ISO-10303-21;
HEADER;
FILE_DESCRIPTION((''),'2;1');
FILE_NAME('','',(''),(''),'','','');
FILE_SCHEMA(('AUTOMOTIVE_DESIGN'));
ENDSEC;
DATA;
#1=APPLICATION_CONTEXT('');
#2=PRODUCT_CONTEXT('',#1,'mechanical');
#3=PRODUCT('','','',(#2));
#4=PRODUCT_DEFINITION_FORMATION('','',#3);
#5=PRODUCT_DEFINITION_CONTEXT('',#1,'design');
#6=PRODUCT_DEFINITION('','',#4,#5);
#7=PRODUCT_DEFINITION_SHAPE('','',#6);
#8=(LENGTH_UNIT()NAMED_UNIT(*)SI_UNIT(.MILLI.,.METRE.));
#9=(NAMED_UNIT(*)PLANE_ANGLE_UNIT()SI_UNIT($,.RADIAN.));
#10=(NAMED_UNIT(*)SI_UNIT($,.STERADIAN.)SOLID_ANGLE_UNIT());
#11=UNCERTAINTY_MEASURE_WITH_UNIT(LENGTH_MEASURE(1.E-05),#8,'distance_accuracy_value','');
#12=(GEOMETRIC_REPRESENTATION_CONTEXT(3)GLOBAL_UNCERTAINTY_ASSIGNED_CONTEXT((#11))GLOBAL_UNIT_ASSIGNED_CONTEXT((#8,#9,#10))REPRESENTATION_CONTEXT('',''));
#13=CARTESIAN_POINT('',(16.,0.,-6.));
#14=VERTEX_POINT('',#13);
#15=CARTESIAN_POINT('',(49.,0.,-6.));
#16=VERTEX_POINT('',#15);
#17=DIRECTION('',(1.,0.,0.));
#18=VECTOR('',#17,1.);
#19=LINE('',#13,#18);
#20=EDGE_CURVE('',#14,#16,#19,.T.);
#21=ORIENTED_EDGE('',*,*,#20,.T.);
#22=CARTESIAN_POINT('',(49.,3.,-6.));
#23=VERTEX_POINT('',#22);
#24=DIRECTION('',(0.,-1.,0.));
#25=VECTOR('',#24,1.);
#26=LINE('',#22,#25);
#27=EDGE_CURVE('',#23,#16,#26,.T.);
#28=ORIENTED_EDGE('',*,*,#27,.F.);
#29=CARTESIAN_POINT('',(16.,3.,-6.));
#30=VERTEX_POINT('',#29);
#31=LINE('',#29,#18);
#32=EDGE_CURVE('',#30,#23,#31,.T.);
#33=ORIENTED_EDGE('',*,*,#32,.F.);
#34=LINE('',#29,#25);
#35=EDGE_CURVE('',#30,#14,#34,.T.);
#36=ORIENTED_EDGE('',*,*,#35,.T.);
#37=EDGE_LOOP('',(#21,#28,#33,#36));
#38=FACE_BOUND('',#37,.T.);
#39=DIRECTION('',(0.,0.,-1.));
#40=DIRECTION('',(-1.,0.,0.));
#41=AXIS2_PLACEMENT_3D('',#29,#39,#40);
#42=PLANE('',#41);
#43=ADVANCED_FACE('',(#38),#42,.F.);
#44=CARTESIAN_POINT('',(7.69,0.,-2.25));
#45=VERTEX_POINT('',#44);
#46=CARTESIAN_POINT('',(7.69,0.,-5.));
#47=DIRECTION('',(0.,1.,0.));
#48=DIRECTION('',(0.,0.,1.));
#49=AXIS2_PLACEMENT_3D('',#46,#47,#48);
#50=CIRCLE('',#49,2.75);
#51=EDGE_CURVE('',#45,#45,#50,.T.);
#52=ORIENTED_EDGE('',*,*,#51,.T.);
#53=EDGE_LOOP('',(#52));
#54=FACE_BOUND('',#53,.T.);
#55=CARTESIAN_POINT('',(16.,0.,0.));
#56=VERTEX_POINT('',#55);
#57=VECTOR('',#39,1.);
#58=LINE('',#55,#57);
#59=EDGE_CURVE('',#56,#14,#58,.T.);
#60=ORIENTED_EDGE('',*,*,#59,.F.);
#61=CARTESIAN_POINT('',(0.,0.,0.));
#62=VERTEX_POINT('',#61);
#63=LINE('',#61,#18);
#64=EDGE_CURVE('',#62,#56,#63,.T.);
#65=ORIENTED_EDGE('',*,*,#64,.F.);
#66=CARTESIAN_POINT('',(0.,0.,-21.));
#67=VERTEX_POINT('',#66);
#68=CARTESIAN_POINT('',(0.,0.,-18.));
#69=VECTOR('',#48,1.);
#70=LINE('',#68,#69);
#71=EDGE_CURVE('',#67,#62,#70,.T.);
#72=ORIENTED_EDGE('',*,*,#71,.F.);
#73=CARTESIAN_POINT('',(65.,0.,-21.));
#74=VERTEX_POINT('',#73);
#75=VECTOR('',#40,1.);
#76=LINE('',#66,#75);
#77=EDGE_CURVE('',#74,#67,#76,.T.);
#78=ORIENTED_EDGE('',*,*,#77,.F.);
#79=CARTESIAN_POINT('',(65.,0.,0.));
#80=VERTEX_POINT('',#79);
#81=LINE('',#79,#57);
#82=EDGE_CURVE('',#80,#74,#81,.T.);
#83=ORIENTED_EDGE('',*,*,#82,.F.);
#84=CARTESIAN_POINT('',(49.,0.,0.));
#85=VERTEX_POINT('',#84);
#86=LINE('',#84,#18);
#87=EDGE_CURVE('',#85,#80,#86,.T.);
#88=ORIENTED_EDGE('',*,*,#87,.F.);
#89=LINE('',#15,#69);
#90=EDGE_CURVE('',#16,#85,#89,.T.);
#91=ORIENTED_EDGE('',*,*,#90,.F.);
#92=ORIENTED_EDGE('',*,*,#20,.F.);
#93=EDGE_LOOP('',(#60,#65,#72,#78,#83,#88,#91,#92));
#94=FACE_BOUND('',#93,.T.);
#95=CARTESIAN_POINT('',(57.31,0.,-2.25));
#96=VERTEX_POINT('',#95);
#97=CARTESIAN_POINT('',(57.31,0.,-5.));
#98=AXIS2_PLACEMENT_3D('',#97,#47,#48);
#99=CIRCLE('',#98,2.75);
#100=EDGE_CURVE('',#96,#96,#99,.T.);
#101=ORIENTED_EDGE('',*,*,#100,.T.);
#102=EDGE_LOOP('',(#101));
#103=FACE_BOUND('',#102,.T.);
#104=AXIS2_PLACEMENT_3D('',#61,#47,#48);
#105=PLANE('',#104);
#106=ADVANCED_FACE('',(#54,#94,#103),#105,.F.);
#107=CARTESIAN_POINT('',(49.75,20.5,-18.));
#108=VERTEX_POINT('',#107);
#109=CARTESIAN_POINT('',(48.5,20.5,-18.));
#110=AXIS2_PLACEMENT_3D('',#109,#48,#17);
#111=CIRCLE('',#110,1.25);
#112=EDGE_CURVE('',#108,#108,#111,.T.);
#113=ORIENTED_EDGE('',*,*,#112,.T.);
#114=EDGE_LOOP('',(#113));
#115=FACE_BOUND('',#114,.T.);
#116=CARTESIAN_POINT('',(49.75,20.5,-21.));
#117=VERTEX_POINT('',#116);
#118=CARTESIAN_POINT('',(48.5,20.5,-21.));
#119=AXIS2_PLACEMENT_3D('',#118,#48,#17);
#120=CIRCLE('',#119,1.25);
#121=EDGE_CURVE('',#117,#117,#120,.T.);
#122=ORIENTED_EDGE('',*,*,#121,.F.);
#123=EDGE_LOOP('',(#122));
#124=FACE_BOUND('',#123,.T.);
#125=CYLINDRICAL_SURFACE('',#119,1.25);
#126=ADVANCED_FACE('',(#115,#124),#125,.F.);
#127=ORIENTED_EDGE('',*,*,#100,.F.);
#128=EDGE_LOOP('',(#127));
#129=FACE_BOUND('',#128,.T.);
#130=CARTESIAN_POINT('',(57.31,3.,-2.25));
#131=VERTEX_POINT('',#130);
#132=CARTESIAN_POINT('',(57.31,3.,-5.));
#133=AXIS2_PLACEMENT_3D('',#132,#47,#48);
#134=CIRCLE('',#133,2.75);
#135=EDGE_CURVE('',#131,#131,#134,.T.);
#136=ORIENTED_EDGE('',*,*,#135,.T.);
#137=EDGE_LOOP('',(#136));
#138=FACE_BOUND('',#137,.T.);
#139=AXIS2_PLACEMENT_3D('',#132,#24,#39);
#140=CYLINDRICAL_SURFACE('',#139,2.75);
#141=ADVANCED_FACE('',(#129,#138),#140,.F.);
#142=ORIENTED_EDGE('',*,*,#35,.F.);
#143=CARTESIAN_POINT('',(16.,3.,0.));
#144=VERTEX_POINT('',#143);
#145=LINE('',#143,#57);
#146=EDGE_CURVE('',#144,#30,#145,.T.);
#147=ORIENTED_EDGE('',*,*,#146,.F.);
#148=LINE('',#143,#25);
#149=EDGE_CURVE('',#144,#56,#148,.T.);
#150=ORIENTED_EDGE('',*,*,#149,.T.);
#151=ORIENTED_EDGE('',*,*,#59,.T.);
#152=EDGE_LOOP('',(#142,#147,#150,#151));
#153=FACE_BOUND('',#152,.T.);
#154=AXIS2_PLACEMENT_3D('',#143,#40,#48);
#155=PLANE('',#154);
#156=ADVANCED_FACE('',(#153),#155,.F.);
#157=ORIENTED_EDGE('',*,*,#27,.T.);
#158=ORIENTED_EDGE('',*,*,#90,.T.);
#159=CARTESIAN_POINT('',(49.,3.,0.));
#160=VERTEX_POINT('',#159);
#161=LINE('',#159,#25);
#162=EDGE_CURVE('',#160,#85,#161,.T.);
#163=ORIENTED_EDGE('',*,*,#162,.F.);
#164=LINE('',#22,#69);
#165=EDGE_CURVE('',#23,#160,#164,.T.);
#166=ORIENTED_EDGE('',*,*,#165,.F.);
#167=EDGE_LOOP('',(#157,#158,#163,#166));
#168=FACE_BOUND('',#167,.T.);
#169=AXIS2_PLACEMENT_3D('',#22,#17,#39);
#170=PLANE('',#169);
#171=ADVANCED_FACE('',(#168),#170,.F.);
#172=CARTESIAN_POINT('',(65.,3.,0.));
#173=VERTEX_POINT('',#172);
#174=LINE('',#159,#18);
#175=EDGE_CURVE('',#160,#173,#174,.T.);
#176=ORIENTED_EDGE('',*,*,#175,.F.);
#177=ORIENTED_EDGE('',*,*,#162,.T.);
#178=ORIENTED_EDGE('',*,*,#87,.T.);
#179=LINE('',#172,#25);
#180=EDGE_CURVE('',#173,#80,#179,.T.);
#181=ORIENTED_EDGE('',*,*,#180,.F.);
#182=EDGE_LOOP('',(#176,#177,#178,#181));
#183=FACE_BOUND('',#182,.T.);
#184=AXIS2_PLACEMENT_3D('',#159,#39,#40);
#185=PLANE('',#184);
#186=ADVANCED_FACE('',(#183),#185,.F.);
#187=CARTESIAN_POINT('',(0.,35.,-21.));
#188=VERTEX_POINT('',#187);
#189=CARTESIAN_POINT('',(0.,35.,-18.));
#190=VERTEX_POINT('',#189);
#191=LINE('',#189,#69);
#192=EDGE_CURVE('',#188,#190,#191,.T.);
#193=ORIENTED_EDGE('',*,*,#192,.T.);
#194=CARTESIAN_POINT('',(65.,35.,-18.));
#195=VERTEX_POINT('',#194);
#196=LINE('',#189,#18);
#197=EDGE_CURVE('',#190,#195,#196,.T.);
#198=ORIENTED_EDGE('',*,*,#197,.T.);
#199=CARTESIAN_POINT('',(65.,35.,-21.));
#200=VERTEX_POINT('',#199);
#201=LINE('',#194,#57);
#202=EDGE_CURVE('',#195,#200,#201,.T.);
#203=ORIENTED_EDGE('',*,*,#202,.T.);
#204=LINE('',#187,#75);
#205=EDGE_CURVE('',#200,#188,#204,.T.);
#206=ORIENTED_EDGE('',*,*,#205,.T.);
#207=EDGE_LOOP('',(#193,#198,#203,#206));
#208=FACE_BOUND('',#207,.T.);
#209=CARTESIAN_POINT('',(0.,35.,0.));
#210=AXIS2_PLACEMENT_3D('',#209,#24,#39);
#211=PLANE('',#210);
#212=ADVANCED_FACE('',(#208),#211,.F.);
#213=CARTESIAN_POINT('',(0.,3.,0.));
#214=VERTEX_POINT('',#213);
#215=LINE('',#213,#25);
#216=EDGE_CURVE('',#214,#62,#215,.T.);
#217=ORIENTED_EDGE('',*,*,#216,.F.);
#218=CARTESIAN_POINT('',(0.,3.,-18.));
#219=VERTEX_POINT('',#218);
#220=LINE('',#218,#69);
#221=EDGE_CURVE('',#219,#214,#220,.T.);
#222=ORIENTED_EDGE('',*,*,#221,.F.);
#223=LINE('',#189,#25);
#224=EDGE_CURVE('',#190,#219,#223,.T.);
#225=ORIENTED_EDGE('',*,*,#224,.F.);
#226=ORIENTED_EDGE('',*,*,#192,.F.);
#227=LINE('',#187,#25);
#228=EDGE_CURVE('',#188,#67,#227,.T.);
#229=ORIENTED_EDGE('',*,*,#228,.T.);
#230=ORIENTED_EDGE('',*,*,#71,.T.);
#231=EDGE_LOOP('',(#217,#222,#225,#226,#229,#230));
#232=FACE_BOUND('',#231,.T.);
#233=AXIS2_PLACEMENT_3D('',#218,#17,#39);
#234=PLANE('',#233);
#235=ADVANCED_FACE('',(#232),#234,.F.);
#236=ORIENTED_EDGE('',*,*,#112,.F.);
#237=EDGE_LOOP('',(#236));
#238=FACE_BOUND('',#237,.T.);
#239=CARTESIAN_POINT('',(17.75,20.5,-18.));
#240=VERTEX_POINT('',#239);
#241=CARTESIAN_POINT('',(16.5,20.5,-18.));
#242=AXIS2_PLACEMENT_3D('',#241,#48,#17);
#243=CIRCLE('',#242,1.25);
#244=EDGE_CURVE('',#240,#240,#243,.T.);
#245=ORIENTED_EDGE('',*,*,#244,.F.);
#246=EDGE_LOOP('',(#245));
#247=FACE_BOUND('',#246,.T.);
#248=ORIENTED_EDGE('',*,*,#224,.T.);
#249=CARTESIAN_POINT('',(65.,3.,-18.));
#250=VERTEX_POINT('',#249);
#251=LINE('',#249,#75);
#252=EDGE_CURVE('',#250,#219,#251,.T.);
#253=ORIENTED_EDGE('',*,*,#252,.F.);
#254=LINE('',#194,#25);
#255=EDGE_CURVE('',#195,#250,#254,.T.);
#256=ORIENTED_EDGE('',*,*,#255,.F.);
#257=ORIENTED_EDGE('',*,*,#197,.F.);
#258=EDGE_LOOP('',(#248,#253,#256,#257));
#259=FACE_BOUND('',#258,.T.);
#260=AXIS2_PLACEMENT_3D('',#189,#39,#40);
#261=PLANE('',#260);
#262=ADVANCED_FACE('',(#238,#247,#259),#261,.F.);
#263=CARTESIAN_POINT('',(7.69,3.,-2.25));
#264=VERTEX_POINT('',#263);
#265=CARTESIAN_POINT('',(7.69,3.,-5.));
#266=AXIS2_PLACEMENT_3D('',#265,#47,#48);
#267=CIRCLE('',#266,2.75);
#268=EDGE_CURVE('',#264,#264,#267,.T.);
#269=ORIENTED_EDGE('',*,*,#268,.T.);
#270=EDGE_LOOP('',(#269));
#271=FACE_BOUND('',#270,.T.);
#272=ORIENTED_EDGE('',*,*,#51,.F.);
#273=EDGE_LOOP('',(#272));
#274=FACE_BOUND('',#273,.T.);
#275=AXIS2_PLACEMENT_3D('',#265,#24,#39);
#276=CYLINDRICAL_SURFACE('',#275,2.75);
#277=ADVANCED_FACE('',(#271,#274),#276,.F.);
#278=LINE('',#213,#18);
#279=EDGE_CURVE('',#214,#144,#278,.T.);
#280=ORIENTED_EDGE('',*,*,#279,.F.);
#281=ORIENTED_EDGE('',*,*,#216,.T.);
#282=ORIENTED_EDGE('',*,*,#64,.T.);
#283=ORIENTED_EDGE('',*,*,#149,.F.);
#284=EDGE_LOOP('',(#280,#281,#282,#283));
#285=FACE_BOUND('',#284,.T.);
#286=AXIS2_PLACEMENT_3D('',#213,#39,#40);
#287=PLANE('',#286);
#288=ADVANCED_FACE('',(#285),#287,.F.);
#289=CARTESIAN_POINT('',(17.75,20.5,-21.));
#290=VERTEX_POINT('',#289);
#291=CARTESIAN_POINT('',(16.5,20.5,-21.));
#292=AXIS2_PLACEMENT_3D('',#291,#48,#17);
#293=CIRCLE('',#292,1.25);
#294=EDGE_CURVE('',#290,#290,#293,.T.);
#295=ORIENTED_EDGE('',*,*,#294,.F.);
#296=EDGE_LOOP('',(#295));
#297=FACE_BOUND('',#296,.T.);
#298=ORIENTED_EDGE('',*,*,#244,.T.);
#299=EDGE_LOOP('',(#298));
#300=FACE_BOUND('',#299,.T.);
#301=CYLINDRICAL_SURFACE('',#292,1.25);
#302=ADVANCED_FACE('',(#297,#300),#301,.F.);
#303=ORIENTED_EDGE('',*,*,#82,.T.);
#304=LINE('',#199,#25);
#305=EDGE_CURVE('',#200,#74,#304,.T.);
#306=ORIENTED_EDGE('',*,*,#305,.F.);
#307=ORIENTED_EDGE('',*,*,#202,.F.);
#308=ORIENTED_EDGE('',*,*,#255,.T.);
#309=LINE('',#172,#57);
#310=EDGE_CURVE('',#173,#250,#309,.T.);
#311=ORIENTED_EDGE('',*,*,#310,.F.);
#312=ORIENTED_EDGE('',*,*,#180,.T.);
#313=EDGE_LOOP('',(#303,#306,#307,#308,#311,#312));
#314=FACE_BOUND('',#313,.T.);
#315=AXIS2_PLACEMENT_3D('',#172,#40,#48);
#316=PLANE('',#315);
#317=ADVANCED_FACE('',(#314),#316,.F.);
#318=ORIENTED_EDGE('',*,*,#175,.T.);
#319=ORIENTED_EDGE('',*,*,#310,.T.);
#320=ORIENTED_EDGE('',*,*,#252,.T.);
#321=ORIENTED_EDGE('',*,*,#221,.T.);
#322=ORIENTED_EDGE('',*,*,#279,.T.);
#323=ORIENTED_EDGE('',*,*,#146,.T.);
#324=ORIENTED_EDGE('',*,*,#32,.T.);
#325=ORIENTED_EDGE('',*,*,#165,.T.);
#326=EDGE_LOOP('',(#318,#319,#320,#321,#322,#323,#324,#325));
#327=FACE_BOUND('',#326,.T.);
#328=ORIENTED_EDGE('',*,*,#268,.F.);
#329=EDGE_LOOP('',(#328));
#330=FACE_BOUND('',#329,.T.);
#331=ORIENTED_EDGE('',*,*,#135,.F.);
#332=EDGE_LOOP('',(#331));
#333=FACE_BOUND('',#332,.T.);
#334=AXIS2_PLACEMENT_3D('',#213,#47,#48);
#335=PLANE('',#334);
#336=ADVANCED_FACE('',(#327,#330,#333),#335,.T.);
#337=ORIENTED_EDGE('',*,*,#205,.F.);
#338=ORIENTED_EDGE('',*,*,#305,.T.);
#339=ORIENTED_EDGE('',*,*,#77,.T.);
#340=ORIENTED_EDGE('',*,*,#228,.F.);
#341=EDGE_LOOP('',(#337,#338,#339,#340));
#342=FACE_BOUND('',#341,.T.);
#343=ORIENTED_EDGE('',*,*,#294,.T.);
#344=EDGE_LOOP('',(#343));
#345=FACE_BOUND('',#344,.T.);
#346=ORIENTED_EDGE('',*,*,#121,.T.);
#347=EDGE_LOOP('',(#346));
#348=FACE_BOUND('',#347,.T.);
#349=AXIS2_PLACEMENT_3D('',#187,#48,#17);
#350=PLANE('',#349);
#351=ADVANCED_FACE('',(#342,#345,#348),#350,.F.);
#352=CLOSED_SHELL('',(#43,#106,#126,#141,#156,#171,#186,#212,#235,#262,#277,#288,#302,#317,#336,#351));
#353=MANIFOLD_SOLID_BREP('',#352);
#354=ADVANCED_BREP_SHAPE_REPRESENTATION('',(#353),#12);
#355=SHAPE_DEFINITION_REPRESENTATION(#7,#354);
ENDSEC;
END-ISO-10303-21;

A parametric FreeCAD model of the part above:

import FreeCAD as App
import Part
import Sketcher

V = App.Vector

doc = App.newDocument("Part")
params = doc.addObject("Spreadsheet::Sheet", "Params")
for row, (alias, value) in enumerate([
    ("sketch1_diameter", "5.5 mm"),
    ("sketch1_width", "16 mm"),
    ("sketch1_width2", "33 mm"),
    ("sketch1_height", "6 mm"),
    ("sketch1_height2", "18 mm"),
    ("pad1_length", "3 mm"),
    ("sketch2_width", "65 mm"),
    ("sketch2_height", "3 mm"),
    ("pad2_length", "35 mm"),
    ("sketch3_diameter", "2.5 mm"),
], start=1):
    params.set(f"A{row}", alias)
    params.set(f"B{row}", "=" + value)
    params.setAlias(f"B{row}", alias)

body = doc.addObject("PartDesign::Body", "Body")

# Sketch on XZ plane
sketch1 = doc.addObject("Sketcher::SketchObject", "Sketch")
body.addObject(sketch1)
sketch1.AttachmentSupport = (doc.XZ_Plane, [""])
sketch1.MapMode = "FlatFace"
sketch1.addGeometry([
    Part.LineSegment(V(0, 0, 0), V(16, 0, 0)),  # 0
    Part.LineSegment(V(16, 0, 0), V(16, -6, 0)),  # 1
    Part.LineSegment(V(16, -6, 0), V(49, -6, 0)),  # 2
    Part.LineSegment(V(49, -6, 0), V(49, 0, 0)),  # 3
    Part.LineSegment(V(49, 0, 0), V(65, 0, 0)),  # 4
    Part.LineSegment(V(65, 0, 0), V(65, -18, 0)),  # 5
    Part.LineSegment(V(65, -18, 0), V(0, -18, 0)),  # 6
    Part.LineSegment(V(0, -18, 0), V(0, 0, 0)),  # 7
    Part.Circle(V(7.7, -5, 0), V(0, 0, 1), 2.8),  # 8
    Part.Circle(V(57.3, -5, 0), V(0, 0, 1), 2.8),  # 9
], False)
sketch1.addConstraint([
    Sketcher.Constraint("Coincident", 0, 2, 1, 1),
    Sketcher.Constraint("Coincident", 1, 2, 2, 1),
    Sketcher.Constraint("Coincident", 2, 2, 3, 1),
    Sketcher.Constraint("Coincident", 3, 2, 4, 1),
    Sketcher.Constraint("Coincident", 4, 2, 5, 1),
    Sketcher.Constraint("Coincident", 5, 2, 6, 1),
    Sketcher.Constraint("Coincident", 6, 2, 7, 1),
    Sketcher.Constraint("Coincident", 7, 2, 0, 1),
    Sketcher.Constraint("Horizontal", 0),
    Sketcher.Constraint("Vertical", 1),
    Sketcher.Constraint("Horizontal", 2),
    Sketcher.Constraint("Vertical", 3),
    Sketcher.Constraint("Horizontal", 4),
    Sketcher.Constraint("Vertical", 5),
    Sketcher.Constraint("Horizontal", 6),
    Sketcher.Constraint("Vertical", 7),
    Sketcher.Constraint("Coincident", 7, 2, -1, 1),
    Sketcher.Constraint("Equal", 8, 9),
    Sketcher.Constraint("PointOnObject", 3, 2, -1),
    Sketcher.Constraint("Horizontal", 8, 3, 9, 3),
    Sketcher.Constraint("Equal", 0, 4),
    Sketcher.Constraint("Diameter", 8, 5.5),
    Sketcher.Constraint("DistanceX", 0, 1, 0, 2, 16.0),
    Sketcher.Constraint("DistanceX", 2, 1, 2, 2, 33.0),
    Sketcher.Constraint("DistanceY", 1, 2, 1, 1, 6.0),
    Sketcher.Constraint("DistanceY", 5, 2, 5, 1, 18.0),
    Sketcher.Constraint("DistanceY", 8, 3, -1, 1, 5.0),
    Sketcher.Constraint("DistanceX", -1, 1, 8, 3, 7.69),
    Sketcher.Constraint("DistanceX", -1, 1, 9, 3, 57.31),
])
sketch1.setExpression("Constraints[21]", "Params.sketch1_diameter")
sketch1.setExpression("Constraints[22]", "Params.sketch1_width")
sketch1.setExpression("Constraints[23]", "Params.sketch1_width2")
sketch1.setExpression("Constraints[24]", "Params.sketch1_height")
sketch1.setExpression("Constraints[25]", "Params.sketch1_height2")
pad1 = doc.addObject("PartDesign::Pad", "Pad")
body.addObject(pad1)
pad1.Profile = sketch1
pad1.setExpression("Length", "Params.pad1_length")
pad1.Reversed = True

# Sketch on XZ plane
sketch2 = doc.addObject("Sketcher::SketchObject", "Sketch001")
body.addObject(sketch2)
sketch2.AttachmentSupport = (doc.XZ_Plane, [""])
sketch2.MapMode = "FlatFace"
sketch2.addGeometry([
    Part.LineSegment(V(0, -21, 0), V(0, -18, 0)),
    Part.LineSegment(V(0, -18, 0), V(65, -18, 0)),
    Part.LineSegment(V(65, -18, 0), V(65, -21, 0)),
    Part.LineSegment(V(65, -21, 0), V(0, -21, 0)),
], False)
sketch2.addConstraint([
    Sketcher.Constraint("Coincident", 0, 2, 1, 1),
    Sketcher.Constraint("Coincident", 1, 2, 2, 1),
    Sketcher.Constraint("Coincident", 2, 2, 3, 1),
    Sketcher.Constraint("Coincident", 3, 2, 0, 1),
    Sketcher.Constraint("Vertical", 0),
    Sketcher.Constraint("Horizontal", 1),
    Sketcher.Constraint("Vertical", 2),
    Sketcher.Constraint("Horizontal", 3),
    Sketcher.Constraint("PointOnObject", 0, 2, -2),
    Sketcher.Constraint("DistanceX", 1, 1, 1, 2, 65.0),
    Sketcher.Constraint("DistanceY", 0, 1, 0, 2, 3.0),
    Sketcher.Constraint("DistanceY", 0, 2, -1, 1, 18.0),
])
sketch2.setExpression("Constraints[9]", "Params.sketch2_width")
sketch2.setExpression("Constraints[10]", "Params.sketch2_height")
pad2 = doc.addObject("PartDesign::Pad", "Pad001")
body.addObject(pad2)
pad2.Profile = sketch2
pad2.setExpression("Length", "Params.pad2_length")
pad2.Reversed = True

# Sketch on XY plane
sketch3 = doc.addObject("Sketcher::SketchObject", "Sketch002")
body.addObject(sketch3)
sketch3.AttachmentSupport = (doc.XY_Plane, [""])
sketch3.MapMode = "FlatFace"
sketch3.AttachmentOffset = App.Placement(V(0, 0, -18), App.Rotation())
sketch3.addGeometry([
    Part.Circle(V(16.5, 20.5, 0), V(0, 0, 1), 1.2),
    Part.Circle(V(48.5, 20.5, 0), V(0, 0, 1), 1.2),
], False)
sketch3.addConstraint([
    Sketcher.Constraint("Equal", 0, 1),
    Sketcher.Constraint("Horizontal", 0, 3, 1, 3),
    Sketcher.Constraint("Diameter", 0, 2.5),
    Sketcher.Constraint("DistanceX", 0, 3, 1, 3, 32.0),
    Sketcher.Constraint("DistanceX", -1, 1, 0, 3, 16.5),
    Sketcher.Constraint("DistanceY", -1, 1, 0, 3, 20.5),
])
sketch3.setExpression("Constraints[2]", "Params.sketch3_diameter")
pocket1 = doc.addObject("PartDesign::Pocket", "Pocket")
body.addObject(pocket1)
pocket1.Profile = sketch3
pocket1.Type = "ThroughAll"

doc.recompute()
